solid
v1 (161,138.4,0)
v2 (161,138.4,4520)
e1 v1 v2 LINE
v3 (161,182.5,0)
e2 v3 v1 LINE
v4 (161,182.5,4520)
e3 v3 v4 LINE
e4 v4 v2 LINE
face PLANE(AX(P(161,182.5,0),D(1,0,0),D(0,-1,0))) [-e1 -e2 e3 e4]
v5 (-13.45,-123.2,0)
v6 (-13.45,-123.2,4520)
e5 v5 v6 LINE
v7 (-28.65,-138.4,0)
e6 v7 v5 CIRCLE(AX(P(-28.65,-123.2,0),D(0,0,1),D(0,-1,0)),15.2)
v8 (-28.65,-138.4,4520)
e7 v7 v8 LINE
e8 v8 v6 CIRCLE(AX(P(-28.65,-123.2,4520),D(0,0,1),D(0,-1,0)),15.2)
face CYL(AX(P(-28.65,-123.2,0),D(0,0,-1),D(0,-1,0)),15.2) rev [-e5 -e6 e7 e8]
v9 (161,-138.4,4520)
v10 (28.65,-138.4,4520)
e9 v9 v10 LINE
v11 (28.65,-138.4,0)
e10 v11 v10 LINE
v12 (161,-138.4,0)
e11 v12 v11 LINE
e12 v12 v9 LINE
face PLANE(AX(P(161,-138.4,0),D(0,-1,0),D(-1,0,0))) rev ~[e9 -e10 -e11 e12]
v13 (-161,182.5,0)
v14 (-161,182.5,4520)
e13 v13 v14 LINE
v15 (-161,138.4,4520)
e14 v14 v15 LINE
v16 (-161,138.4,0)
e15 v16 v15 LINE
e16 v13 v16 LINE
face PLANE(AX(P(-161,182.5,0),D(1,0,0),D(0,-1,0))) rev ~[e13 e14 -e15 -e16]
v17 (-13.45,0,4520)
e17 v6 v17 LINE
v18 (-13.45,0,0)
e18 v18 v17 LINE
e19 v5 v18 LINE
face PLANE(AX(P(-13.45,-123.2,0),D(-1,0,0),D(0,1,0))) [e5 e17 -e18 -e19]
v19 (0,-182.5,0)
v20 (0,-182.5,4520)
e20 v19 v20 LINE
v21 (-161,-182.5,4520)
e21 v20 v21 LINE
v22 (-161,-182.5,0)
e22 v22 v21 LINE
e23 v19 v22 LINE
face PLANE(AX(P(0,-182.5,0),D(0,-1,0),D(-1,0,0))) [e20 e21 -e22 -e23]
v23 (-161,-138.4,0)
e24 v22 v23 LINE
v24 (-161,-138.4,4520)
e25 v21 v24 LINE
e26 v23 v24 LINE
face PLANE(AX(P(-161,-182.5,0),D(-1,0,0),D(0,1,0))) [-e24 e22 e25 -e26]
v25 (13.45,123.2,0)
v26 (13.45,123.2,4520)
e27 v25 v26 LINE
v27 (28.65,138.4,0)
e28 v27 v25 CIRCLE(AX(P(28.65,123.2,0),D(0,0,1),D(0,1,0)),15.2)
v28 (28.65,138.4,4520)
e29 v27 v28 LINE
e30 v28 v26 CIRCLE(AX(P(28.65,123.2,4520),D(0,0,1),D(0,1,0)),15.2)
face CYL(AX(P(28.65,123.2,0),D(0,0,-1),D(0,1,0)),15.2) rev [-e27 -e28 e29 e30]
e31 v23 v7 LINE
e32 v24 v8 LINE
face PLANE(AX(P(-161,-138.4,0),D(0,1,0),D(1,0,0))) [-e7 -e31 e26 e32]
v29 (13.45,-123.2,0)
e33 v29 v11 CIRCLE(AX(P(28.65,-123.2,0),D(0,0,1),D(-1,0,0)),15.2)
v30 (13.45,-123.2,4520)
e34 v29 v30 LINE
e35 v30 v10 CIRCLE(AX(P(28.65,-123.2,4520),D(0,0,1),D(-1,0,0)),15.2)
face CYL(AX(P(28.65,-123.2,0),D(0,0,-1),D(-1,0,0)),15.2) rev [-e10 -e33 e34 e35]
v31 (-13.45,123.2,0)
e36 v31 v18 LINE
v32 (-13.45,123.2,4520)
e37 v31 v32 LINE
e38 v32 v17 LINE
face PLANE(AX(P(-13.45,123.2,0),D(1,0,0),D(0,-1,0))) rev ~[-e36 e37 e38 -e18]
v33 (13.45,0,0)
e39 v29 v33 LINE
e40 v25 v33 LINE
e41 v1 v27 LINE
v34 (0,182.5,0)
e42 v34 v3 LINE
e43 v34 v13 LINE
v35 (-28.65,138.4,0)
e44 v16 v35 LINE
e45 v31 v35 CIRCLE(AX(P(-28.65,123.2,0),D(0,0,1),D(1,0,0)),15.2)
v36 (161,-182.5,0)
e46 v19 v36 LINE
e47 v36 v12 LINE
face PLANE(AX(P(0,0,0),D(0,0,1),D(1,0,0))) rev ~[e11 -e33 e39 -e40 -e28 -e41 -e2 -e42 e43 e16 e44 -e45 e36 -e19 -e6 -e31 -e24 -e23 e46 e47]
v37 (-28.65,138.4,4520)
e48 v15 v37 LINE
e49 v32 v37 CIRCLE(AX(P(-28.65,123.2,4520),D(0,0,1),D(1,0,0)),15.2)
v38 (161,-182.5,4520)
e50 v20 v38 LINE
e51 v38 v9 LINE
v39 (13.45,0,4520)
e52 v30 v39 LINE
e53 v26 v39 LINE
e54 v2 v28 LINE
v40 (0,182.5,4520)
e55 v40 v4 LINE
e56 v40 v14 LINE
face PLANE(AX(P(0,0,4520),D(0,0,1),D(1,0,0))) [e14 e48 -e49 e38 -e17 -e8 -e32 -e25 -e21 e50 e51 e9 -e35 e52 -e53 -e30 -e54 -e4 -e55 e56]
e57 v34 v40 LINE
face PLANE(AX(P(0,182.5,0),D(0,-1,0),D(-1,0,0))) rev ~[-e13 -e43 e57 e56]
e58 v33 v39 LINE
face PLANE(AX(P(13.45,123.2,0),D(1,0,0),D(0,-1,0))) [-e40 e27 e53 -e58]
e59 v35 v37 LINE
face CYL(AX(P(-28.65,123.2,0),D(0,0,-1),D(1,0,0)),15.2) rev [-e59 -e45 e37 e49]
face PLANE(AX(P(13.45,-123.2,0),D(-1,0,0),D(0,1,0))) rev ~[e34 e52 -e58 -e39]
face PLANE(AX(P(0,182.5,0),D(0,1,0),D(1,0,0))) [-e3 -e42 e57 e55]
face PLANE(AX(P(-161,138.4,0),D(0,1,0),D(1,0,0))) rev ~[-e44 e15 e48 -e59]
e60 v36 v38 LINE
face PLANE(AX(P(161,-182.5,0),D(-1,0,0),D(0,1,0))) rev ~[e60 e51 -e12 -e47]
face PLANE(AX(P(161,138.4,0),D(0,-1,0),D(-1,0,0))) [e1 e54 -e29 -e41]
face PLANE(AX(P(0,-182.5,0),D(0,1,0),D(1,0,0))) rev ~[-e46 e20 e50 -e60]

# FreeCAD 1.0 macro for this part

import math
import FreeCAD as App
import Part
import Sketcher

doc = App.newDocument("Part")
params = doc.addObject("Spreadsheet::Sheet", "Params")
for row, (alias, value) in enumerate([
    ("sketch1_radius", "15.2 mm"),
    ("sketch1_height", "44.1 mm"),
    ("pad1_length", "4520 mm"),
], start=1):
    params.set(f"A{row}", alias)
    params.set(f"B{row}", "=" + value)
    params.setAlias(f"B{row}", alias)

body = doc.addObject("PartDesign::Body", "Body")

# Sketch on XY plane
sketch1 = body.newObject("Sketcher::SketchObject", "Sketch")
sketch1.AttachmentSupport = (doc.getObject("XY_Plane"), [""])
sketch1.MapMode = "FlatFace"
sketch1.addGeometry(Part.LineSegment(App.Vector(-161, -138, 0), App.Vector(-161, -182, 0)), False)
sketch1.addGeometry(Part.LineSegment(App.Vector(-161, -182, 0), App.Vector(161, -182, 0)), False)
sketch1.addGeometry(Part.LineSegment(App.Vector(161, -182, 0), App.Vector(161, -138, 0)), False)
sketch1.addGeometry(Part.LineSegment(App.Vector(161, -138, 0), App.Vector(29, -138, 0)), False)
sketch1.addGeometry(Part.ArcOfCircle(Part.Circle(App.Vector(29, -123, 0), App.Vector(0, 0, 1), 15), math.radians(180), math.radians(270)), False)
sketch1.addGeometry(Part.LineSegment(App.Vector(13, -123, 0), App.Vector(13, 123, 0)), False)
sketch1.addGeometry(Part.ArcOfCircle(Part.Circle(App.Vector(29, 123, 0), App.Vector(0, 0, 1), 15), math.radians(90), math.radians(180)), False)
sketch1.addGeometry(Part.LineSegment(App.Vector(29, 138, 0), App.Vector(161, 138, 0)), False)
sketch1.addGeometry(Part.LineSegment(App.Vector(161, 138, 0), App.Vector(161, 182, 0)), False)
sketch1.addGeometry(Part.LineSegment(App.Vector(161, 182, 0), App.Vector(-161, 182, 0)), False)
sketch1.addGeometry(Part.LineSegment(App.Vector(-161, 182, 0), App.Vector(-161, 138, 0)), False)
sketch1.addGeometry(Part.LineSegment(App.Vector(-161, 138, 0), App.Vector(-29, 138, 0)), False)
sketch1.addGeometry(Part.ArcOfCircle(Part.Circle(App.Vector(-29, 123, 0), App.Vector(0, 0, 1), 15), math.radians(0), math.radians(90)), False)
sketch1.addGeometry(Part.LineSegment(App.Vector(-13, 123, 0), App.Vector(-13, -123, 0)), False)
sketch1.addGeometry(Part.ArcOfCircle(Part.Circle(App.Vector(-29, -123, 0), App.Vector(0, 0, 1), 15), math.radians(-90), math.radians(0)), False)
sketch1.addGeometry(Part.LineSegment(App.Vector(-29, -138, 0), App.Vector(-161, -138, 0)), False)
sketch1.addConstraint(Sketcher.Constraint("Coincident", 0, 2, 1, 1))
sketch1.addConstraint(Sketcher.Constraint("Coincident", 1, 2, 2, 1))
sketch1.addConstraint(Sketcher.Constraint("Coincident", 2, 2, 3, 1))
sketch1.addConstraint(Sketcher.Constraint("Tangent", 3, 2, 4, 2))
sketch1.addConstraint(Sketcher.Constraint("Tangent", 4, 1, 5, 1))
sketch1.addConstraint(Sketcher.Constraint("Tangent", 5, 2, 6, 2))
sketch1.addConstraint(Sketcher.Constraint("Tangent", 6, 1, 7, 1))
sketch1.addConstraint(Sketcher.Constraint("Coincident", 7, 2, 8, 1))
sketch1.addConstraint(Sketcher.Constraint("Coincident", 8, 2, 9, 1))
sketch1.addConstraint(Sketcher.Constraint("Coincident", 9, 2, 10, 1))
sketch1.addConstraint(Sketcher.Constraint("Coincident", 10, 2, 11, 1))
sketch1.addConstraint(Sketcher.Constraint("Tangent", 11, 2, 12, 2))
sketch1.addConstraint(Sketcher.Constraint("Tangent", 12, 1, 13, 1))
sketch1.addConstraint(Sketcher.Constraint("Tangent", 13, 2, 14, 2))
sketch1.addConstraint(Sketcher.Constraint("Tangent", 14, 1, 15, 1))
sketch1.addConstraint(Sketcher.Constraint("Coincident", 15, 2, 0, 1))
sketch1.addConstraint(Sketcher.Constraint("Vertical", 0))
sketch1.addConstraint(Sketcher.Constraint("Horizontal", 1))
sketch1.addConstraint(Sketcher.Constraint("Vertical", 2))
sketch1.addConstraint(Sketcher.Constraint("Horizontal", 3))
sketch1.addConstraint(Sketcher.Constraint("Vertical", 5))
sketch1.addConstraint(Sketcher.Constraint("Horizontal", 7))
sketch1.addConstraint(Sketcher.Constraint("Vertical", 8))
sketch1.addConstraint(Sketcher.Constraint("Horizontal", 9))
sketch1.addConstraint(Sketcher.Constraint("Vertical", 10))
sketch1.addConstraint(Sketcher.Constraint("Horizontal", 11))
sketch1.addConstraint(Sketcher.Constraint("Vertical", 13))
sketch1.addConstraint(Sketcher.Constraint("Horizontal", 15))
sketch1.addConstraint(Sketcher.Constraint("Equal", 4, 6))
sketch1.addConstraint(Sketcher.Constraint("Equal", 6, 12))
sketch1.addConstraint(Sketcher.Constraint("Equal", 12, 14))
sketch1.addConstraint(Sketcher.Constraint("Symmetric", 4, 3, 12, 3, -1, 1))
sketch1.addConstraint(Sketcher.Constraint("Symmetric", 0, 2, 8, 2, -1, 1))
sketch1.addConstraint(Sketcher.Constraint("Symmetric", 7, 2, 10, 2, -2))
sketch1.addConstraint(Sketcher.Constraint("Symmetric", 2, 2, 15, 2, -2))
sketch1.addConstraint(Sketcher.Constraint("Radius", 4, 15.2))
sketch1.addConstraint(Sketcher.Constraint("DistanceY", 0, 2, 0, 1, 44.1))
sketch1.addConstraint(Sketcher.Constraint("DistanceX", 0, 2, -1, 1, 161.0))
sketch1.addConstraint(Sketcher.Constraint("DistanceY", 0, 2, -1, 1, 182.5))
sketch1.addConstraint(Sketcher.Constraint("DistanceX", -1, 1, 4, 1, 13.45))
sketch1.setExpression("Constraints[35]", "Params.sketch1_radius")
sketch1.setExpression("Constraints[36]", "Params.sketch1_height")
pad1 = body.newObject("PartDesign::Pad", "Pad")
pad1.Profile = sketch1
pad1.setExpression("Length", "Params.pad1_length")

doc.recompute()
